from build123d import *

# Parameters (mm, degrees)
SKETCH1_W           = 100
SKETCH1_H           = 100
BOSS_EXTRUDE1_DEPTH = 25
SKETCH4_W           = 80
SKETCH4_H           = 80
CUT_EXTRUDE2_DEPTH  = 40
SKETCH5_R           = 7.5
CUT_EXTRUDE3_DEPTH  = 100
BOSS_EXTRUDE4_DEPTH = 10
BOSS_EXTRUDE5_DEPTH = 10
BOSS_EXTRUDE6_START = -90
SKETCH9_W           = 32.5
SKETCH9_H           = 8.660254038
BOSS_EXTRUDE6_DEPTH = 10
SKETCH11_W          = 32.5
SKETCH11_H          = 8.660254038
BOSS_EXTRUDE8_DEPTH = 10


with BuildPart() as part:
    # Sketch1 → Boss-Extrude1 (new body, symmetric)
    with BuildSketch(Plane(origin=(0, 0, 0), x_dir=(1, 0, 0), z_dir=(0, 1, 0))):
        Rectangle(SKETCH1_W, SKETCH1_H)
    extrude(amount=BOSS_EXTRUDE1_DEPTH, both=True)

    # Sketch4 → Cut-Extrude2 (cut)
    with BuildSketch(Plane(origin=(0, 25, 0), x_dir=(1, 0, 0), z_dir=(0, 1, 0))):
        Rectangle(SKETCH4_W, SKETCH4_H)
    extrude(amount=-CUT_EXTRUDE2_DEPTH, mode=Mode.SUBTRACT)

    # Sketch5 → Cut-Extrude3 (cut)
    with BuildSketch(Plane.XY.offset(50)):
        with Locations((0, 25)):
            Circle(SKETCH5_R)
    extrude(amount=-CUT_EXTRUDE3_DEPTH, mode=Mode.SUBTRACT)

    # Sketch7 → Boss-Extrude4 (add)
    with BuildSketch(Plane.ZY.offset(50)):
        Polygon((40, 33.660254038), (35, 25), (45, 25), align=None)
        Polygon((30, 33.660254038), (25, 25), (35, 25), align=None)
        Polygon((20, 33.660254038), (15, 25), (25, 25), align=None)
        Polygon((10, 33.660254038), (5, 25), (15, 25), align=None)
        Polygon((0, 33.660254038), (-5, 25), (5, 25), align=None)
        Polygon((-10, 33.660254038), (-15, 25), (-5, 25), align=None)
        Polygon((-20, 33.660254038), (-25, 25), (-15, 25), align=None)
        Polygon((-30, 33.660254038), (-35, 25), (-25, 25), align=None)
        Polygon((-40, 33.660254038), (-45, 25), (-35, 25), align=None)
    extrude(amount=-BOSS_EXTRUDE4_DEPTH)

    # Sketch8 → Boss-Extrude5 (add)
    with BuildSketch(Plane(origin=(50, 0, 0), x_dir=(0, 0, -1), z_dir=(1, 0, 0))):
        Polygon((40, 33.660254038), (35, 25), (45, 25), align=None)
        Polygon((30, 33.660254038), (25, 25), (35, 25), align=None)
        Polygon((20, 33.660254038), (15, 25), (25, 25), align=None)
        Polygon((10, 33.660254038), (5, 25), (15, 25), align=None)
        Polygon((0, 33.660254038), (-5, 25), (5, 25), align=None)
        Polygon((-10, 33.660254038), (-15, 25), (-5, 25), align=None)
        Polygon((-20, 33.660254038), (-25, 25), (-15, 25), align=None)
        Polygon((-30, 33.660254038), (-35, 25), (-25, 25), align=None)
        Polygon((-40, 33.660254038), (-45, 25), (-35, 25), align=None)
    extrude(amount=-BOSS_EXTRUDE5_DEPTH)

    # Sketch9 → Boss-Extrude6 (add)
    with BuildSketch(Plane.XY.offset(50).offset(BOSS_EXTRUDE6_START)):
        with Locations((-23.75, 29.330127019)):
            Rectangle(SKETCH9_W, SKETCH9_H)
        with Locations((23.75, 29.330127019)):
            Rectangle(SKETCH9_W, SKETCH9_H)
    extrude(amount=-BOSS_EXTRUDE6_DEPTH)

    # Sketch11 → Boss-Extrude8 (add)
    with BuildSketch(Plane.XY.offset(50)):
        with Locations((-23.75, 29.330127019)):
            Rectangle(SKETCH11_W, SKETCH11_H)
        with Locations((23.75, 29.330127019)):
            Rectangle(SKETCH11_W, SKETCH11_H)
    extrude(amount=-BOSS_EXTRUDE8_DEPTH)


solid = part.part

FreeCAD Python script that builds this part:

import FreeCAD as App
import Part
import Sketcher
from FreeCAD import Vector
Q = App.Units.Quantity

doc = App.newDocument("Part")
params = doc.addObject("Spreadsheet::Sheet", "Params")
for row, (alias, value) in enumerate([
    ("sketch1_width", "100 mm"),
    ("pad1_length", "50 mm"),
    ("sketch2_width", "80 mm"),
    ("pocket1_length", "40 mm"),
    ("sketch3_diameter", "15 mm"),
    ("pocket2_length", "100 mm"),
    ("sketch4_height", "10 mm"),
    ("pad2_length", "10 mm"),
    ("sketch5_height", "10 mm"),
    ("pad3_length", "10 mm"),
    ("sketch6_width", "32.5 mm"),
    ("pad4_length", "10 mm"),
    ("sketch7_width", "32.5 mm"),
    ("pad5_length", "10 mm"),
], start=1):
    params.set(f"A{row}", alias)
    params.set(f"B{row}", "=" + value)
    params.setAlias(f"B{row}", alias)

body = doc.addObject("PartDesign::Body", "Body")

# Sketch on XZ plane
sketch1 = body.newObject("Sketcher::SketchObject", "Sketch")
sketch1.AttachmentSupport = (doc.getObject("XZ_Plane"), [""])
sketch1.MapMode = "FlatFace"
sketch1.addGeometry([
    Part.LineSegment(Vector(-50, -50, 0), Vector(-50, 50, 0)),
    Part.LineSegment(Vector(-50, 50, 0), Vector(50, 50, 0)),
    Part.LineSegment(Vector(50, 50, 0), Vector(50, -50, 0)),
    Part.LineSegment(Vector(50, -50, 0), Vector(-50, -50, 0)),
], False)
sketch1.addConstraint([
    Sketcher.Constraint("Coincident", 0, 2, 1, 1),
    Sketcher.Constraint("Coincident", 1, 2, 2, 1),
    Sketcher.Constraint("Coincident", 2, 2, 3, 1),
    Sketcher.Constraint("Coincident", 3, 2, 0, 1),
    Sketcher.Constraint("Vertical", 0),
    Sketcher.Constraint("Horizontal", 1),
    Sketcher.Constraint("Vertical", 2),
    Sketcher.Constraint("Horizontal", 3),
    Sketcher.Constraint("Symmetric", 0, 2, 2, 2, -1, 1),
    Sketcher.Constraint("Equal", 3, 0),
    Sketcher.Constraint("DistanceX", 1, 1, 1, 2, Q("100 mm")),
])
sketch1.setExpression("Constraints[10]", "Params.sketch1_width")
pad1 = body.newObject("PartDesign::Pad", "Pad")
pad1.Profile = sketch1
pad1.setExpression("Length", "Params.pad1_length")
pad1.Midplane = True

# Sketch on XZ plane
sketch2 = body.newObject("Sketcher::SketchObject", "Sketch001")
sketch2.AttachmentSupport = (doc.getObject("XZ_Plane"), [""])
sketch2.MapMode = "FlatFace"
sketch2.AttachmentOffset = App.Placement(Vector(0, 0, -25), App.Rotation())
sketch2.addGeometry([
    Part.LineSegment(Vector(-40, -40, 0), Vector(-40, 40, 0)),
    Part.LineSegment(Vector(-40, 40, 0), Vector(40, 40, 0)),
    Part.LineSegment(Vector(40, 40, 0), Vector(40, -40, 0)),
    Part.LineSegment(Vector(40, -40, 0), Vector(-40, -40, 0)),
], False)
sketch2.addConstraint([
    Sketcher.Constraint("Coincident", 0, 2, 1, 1),
    Sketcher.Constraint("Coincident", 1, 2, 2, 1),
    Sketcher.Constraint("Coincident", 2, 2, 3, 1),
    Sketcher.Constraint("Coincident", 3, 2, 0, 1),
    Sketcher.Constraint("Vertical", 0),
    Sketcher.Constraint("Horizontal", 1),
    Sketcher.Constraint("Vertical", 2),
    Sketcher.Constraint("Horizontal", 3),
    Sketcher.Constraint("Symmetric", 0, 2, 2, 2, -1, 1),
    Sketcher.Constraint("Equal", 3, 0),
    Sketcher.Constraint("DistanceX", 1, 1, 1, 2, Q("80 mm")),
])
sketch2.setExpression("Constraints[10]", "Params.sketch2_width")
pocket1 = body.newObject("PartDesign::Pocket", "Pocket")
pocket1.Profile = sketch2
pocket1.setExpression("Length", "Params.pocket1_length")
pocket1.Reversed = True

# Sketch on XY plane
sketch3 = body.newObject("Sketcher::SketchObject", "Sketch002")
sketch3.AttachmentSupport = (doc.getObject("XY_Plane"), [""])
sketch3.MapMode = "FlatFace"
sketch3.AttachmentOffset = App.Placement(Vector(0, 0, 50), App.Rotation())
sketch3.addGeometry(Part.Circle(Vector(0, 25, 0), Vector(0, 0, 1), 8), False)
sketch3.addConstraint([
    Sketcher.Constraint("PointOnObject", 0, 3, -2),
    Sketcher.Constraint("Diameter", 0, Q("15 mm")),
    Sketcher.Constraint("DistanceY", -1, 1, 0, 3, Q("25 mm")),
])
sketch3.setExpression("Constraints[1]", "Params.sketch3_diameter")
pocket2 = body.newObject("PartDesign::Pocket", "Pocket001")
pocket2.Profile = sketch3
pocket2.setExpression("Length", "Params.pocket2_length")

# Sketch on YZ plane
sketch4 = body.newObject("Sketcher::SketchObject", "Sketch003")
sketch4.AttachmentSupport = (doc.getObject("YZ_Plane"), [""])
sketch4.MapMode = "FlatFace"
sketch4.AttachmentOffset = App.Placement(Vector(0, 0, -50), App.Rotation())
sketch4.addGeometry([
    Part.LineSegment(Vector(34, 40, 0), Vector(25, 35, 0)),  # 0
    Part.LineSegment(Vector(25, 35, 0), Vector(25, 45, 0)),  # 1
    Part.LineSegment(Vector(25, 45, 0), Vector(34, 40, 0)),  # 2
    Part.LineSegment(Vector(34, 30, 0), Vector(25, 25, 0)),  # 3
    Part.LineSegment(Vector(25, 25, 0), Vector(25, 35, 0)),  # 4
    Part.LineSegment(Vector(25, 35, 0), Vector(34, 30, 0)),  # 5
    Part.LineSegment(Vector(34, 20, 0), Vector(25, 15, 0)),  # 6
    Part.LineSegment(Vector(25, 15, 0), Vector(25, 25, 0)),  # 7
    Part.LineSegment(Vector(25, 25, 0), Vector(34, 20, 0)),  # 8
    Part.LineSegment(Vector(34, 10, 0), Vector(25, 5, 0)),  # 9
    Part.LineSegment(Vector(25, 5, 0), Vector(25, 15, 0)),  # 10
    Part.LineSegment(Vector(25, 15, 0), Vector(34, 10, 0)),  # 11
    Part.LineSegment(Vector(34, 0, 0), Vector(25, -5, 0)),  # 12
    Part.LineSegment(Vector(25, -5, 0), Vector(25, 5, 0)),  # 13
    Part.LineSegment(Vector(25, 5, 0), Vector(34, 0, 0)),  # 14
    Part.LineSegment(Vector(34, -10, 0), Vector(25, -15, 0)),  # 15
    Part.LineSegment(Vector(25, -15, 0), Vector(25, -5, 0)),  # 16
    Part.LineSegment(Vector(25, -5, 0), Vector(34, -10, 0)),  # 17
    Part.LineSegment(Vector(34, -20, 0), Vector(25, -25, 0)),  # 18
    Part.LineSegment(Vector(25, -25, 0), Vector(25, -15, 0)),  # 19
    Part.LineSegment(Vector(25, -15, 0), Vector(34, -20, 0)),  # 20
    Part.LineSegment(Vector(34, -30, 0), Vector(25, -35, 0)),  # 21
    Part.LineSegment(Vector(25, -35, 0), Vector(25, -25, 0)),  # 22
    Part.LineSegment(Vector(25, -25, 0), Vector(34, -30, 0)),  # 23
    Part.LineSegment(Vector(34, -40, 0), Vector(25, -45, 0)),  # 24
    Part.LineSegment(Vector(25, -45, 0), Vector(25, -35, 0)),  # 25
    Part.LineSegment(Vector(25, -35, 0), Vector(34, -40, 0)),  # 26
], False)
sketch4.addConstraint([
    Sketcher.Constraint("Coincident", 0, 2, 1, 1),
    Sketcher.Constraint("Coincident", 1, 2, 2, 1),
    Sketcher.Constraint("Coincident", 2, 2, 0, 1),
    Sketcher.Constraint("Coincident", 3, 2, 4, 1),
    Sketcher.Constraint("Coincident", 4, 2, 5, 1),
    Sketcher.Constraint("Coincident", 5, 2, 3, 1),
    Sketcher.Constraint("Coincident", 6, 2, 7, 1),
    Sketcher.Constraint("Coincident", 7, 2, 8, 1),
    Sketcher.Constraint("Coincident", 8, 2, 6, 1),
    Sketcher.Constraint("Coincident", 9, 2, 10, 1),
    Sketcher.Constraint("Coincident", 10, 2, 11, 1),
    Sketcher.Constraint("Coincident", 11, 2, 9, 1),
    Sketcher.Constraint("Coincident", 12, 2, 13, 1),
    Sketcher.Constraint("Coincident", 13, 2, 14, 1),
    Sketcher.Constraint("Coincident", 14, 2, 12, 1),
    Sketcher.Constraint("Coincident", 15, 2, 16, 1),
    Sketcher.Constraint("Coincident", 16, 2, 17, 1),
    Sketcher.Constraint("Coincident", 17, 2, 15, 1),
    Sketcher.Constraint("Coincident", 18, 2, 19, 1),
    Sketcher.Constraint("Coincident", 19, 2, 20, 1),
    Sketcher.Constraint("Coincident", 20, 2, 18, 1),
    Sketcher.Constraint("Coincident", 21, 2, 22, 1),
    Sketcher.Constraint("Coincident", 22, 2, 23, 1),
    Sketcher.Constraint("Coincident", 23, 2, 21, 1),
    Sketcher.Constraint("Coincident", 24, 2, 25, 1),
    Sketcher.Constraint("Coincident", 25, 2, 26, 1),
    Sketcher.Constraint("Coincident", 26, 2, 24, 1),
    Sketcher.Constraint("Vertical", 1),
    Sketcher.Constraint("Vertical", 4),
    Sketcher.Constraint("Vertical", 7),
    Sketcher.Constraint("Vertical", 10),
    Sketcher.Constraint("Vertical", 13),
    Sketcher.Constraint("Vertical", 16),
    Sketcher.Constraint("Vertical", 19),
    Sketcher.Constraint("Vertical", 22),
    Sketcher.Constraint("Vertical", 25),
    Sketcher.Constraint("Coincident", 4, 2, 0, 2),
    Sketcher.Constraint("Coincident", 7, 2, 3, 2),
    Sketcher.Constraint("Coincident", 10, 2, 6, 2),
    Sketcher.Constraint("Coincident", 13, 2, 9, 2),
    Sketcher.Constraint("Coincident", 16, 2, 12, 2),
    Sketcher.Constraint("Coincident", 19, 2, 15, 2),
    Sketcher.Constraint("Coincident", 22, 2, 18, 2),
    Sketcher.Constraint("Coincident", 25, 2, 21, 2),
    Sketcher.Constraint("Symmetric", 11, 2, 17, 2, -1),
    Sketcher.Constraint("Symmetric", 8, 2, 20, 2, -1),
    Sketcher.Constraint("Symmetric", 5, 2, 23, 2, -1),
    Sketcher.Constraint("Symmetric", 2, 2, 26, 2, -1),
    Sketcher.Constraint("PointOnObject", 14, 2, -1),
    Sketcher.Constraint("Parallel", 0, 3),
    Sketcher.Constraint("Parallel", 2, 5),
    Sketcher.Constraint("Parallel", 3, 6),
    Sketcher.Constraint("Parallel", 5, 8),
    Sketcher.Constraint("Parallel", 6, 9),
    Sketcher.Constraint("Parallel", 8, 11),
    Sketcher.Constraint("Parallel", 9, 12),
    Sketcher.Constraint("Parallel", 11, 14),
    Sketcher.Constraint("Parallel", 12, 15),
    Sketcher.Constraint("Parallel", 15, 18),
    Sketcher.Constraint("Parallel", 18, 21),
    Sketcher.Constraint("Parallel", 21, 24),
    Sketcher.Constraint("Vertical", 2, 2, 5, 2),
    Sketcher.Constraint("Vertical", 5, 2, 8, 2),
    Sketcher.Constraint("Vertical", 8, 2, 11, 2),
    Sketcher.Constraint("Vertical", 11, 2, 14, 2),
    Sketcher.Constraint("Equal", 0, 2),
    Sketcher.Constraint("DistanceY", 1, 1, 1, 2, Q("10 mm")),
    Sketcher.Constraint("Angle", 0, Q("-150 deg")),
    Sketcher.Constraint("DistanceX", -1, 1, 0, 2, Q("25 mm")),
])
sketch4.setExpression("Constraints[66]", "Params.sketch4_height")
pad2 = body.newObject("PartDesign::Pad", "Pad001")
pad2.Profile = sketch4
pad2.setExpression("Length", "Params.pad2_length")

# Sketch on YZ plane
sketch5 = body.newObject("Sketcher::SketchObject", "Sketch004")
sketch5.AttachmentSupport = (doc.getObject("YZ_Plane"), [""])
sketch5.MapMode = "FlatFace"
sketch5.AttachmentOffset = App.Placement(Vector(0, 0, 50), App.Rotation())
sketch5.addGeometry([
    Part.LineSegment(Vector(34, -40, 0), Vector(25, -35, 0)),  # 0
    Part.LineSegment(Vector(25, -35, 0), Vector(25, -45, 0)),  # 1
    Part.LineSegment(Vector(25, -45, 0), Vector(34, -40, 0)),  # 2
    Part.LineSegment(Vector(34, -30, 0), Vector(25, -25, 0)),  # 3
    Part.LineSegment(Vector(25, -25, 0), Vector(25, -35, 0)),  # 4
    Part.LineSegment(Vector(25, -35, 0), Vector(34, -30, 0)),  # 5
    Part.LineSegment(Vector(34, -20, 0), Vector(25, -15, 0)),  # 6
    Part.LineSegment(Vector(25, -15, 0), Vector(25, -25, 0)),  # 7
    Part.LineSegment(Vector(25, -25, 0), Vector(34, -20, 0)),  # 8
    Part.LineSegment(Vector(34, -10, 0), Vector(25, -5, 0)),  # 9
    Part.LineSegment(Vector(25, -5, 0), Vector(25, -15, 0)),  # 10
    Part.LineSegment(Vector(25, -15, 0), Vector(34, -10, 0)),  # 11
    Part.LineSegment(Vector(34, 0, 0), Vector(25, 5, 0)),  # 12
    Part.LineSegment(Vector(25, 5, 0), Vector(25, -5, 0)),  # 13
    Part.LineSegment(Vector(25, -5, 0), Vector(34, 0, 0)),  # 14
    Part.LineSegment(Vector(34, 10, 0), Vector(25, 15, 0)),  # 15
    Part.LineSegment(Vector(25, 15, 0), Vector(25, 5, 0)),  # 16
    Part.LineSegment(Vector(25, 5, 0), Vector(34, 10, 0)),  # 17
    Part.LineSegment(Vector(34, 20, 0), Vector(25, 25, 0)),  # 18
    Part.LineSegment(Vector(25, 25, 0), Vector(25, 15, 0)),  # 19
    Part.LineSegment(Vector(25, 15, 0), Vector(34, 20, 0)),  # 20
    Part.LineSegment(Vector(34, 30, 0), Vector(25, 35, 0)),  # 21
    Part.LineSegment(Vector(25, 35, 0), Vector(25, 25, 0)),  # 22
    Part.LineSegment(Vector(25, 25, 0), Vector(34, 30, 0)),  # 23
    Part.LineSegment(Vector(34, 40, 0), Vector(25, 45, 0)),  # 24
    Part.LineSegment(Vector(25, 45, 0), Vector(25, 35, 0)),  # 25
    Part.LineSegment(Vector(25, 35, 0), Vector(34, 40, 0)),  # 26
], False)
sketch5.addConstraint([
    Sketcher.Constraint("Coincident", 0, 2, 1, 1),
    Sketcher.Constraint("Coincident", 1, 2, 2, 1),
    Sketcher.Constraint("Coincident", 2, 2, 0, 1),
    Sketcher.Constraint("Coincident", 3, 2, 4, 1),
    Sketcher.Constraint("Coincident", 4, 2, 5, 1),
    Sketcher.Constraint("Coincident", 5, 2, 3, 1),
    Sketcher.Constraint("Coincident", 6, 2, 7, 1),
    Sketcher.Constraint("Coincident", 7, 2, 8, 1),
    Sketcher.Constraint("Coincident", 8, 2, 6, 1),
    Sketcher.Constraint("Coincident", 9, 2, 10, 1),
    Sketcher.Constraint("Coincident", 10, 2, 11, 1),
    Sketcher.Constraint("Coincident", 11, 2, 9, 1),
    Sketcher.Constraint("Coincident", 12, 2, 13, 1),
    Sketcher.Constraint("Coincident", 13, 2, 14, 1),
    Sketcher.Constraint("Coincident", 14, 2, 12, 1),
    Sketcher.Constraint("Coincident", 15, 2, 16, 1),
    Sketcher.Constraint("Coincident", 16, 2, 17, 1),
    Sketcher.Constraint("Coincident", 17, 2, 15, 1),
    Sketcher.Constraint("Coincident", 18, 2, 19, 1),
    Sketcher.Constraint("Coincident", 19, 2, 20, 1),
    Sketcher.Constraint("Coincident", 20, 2, 18, 1),
    Sketcher.Constraint("Coincident", 21, 2, 22, 1),
    Sketcher.Constraint("Coincident", 22, 2, 23, 1),
    Sketcher.Constraint("Coincident", 23, 2, 21, 1),
    Sketcher.Constraint("Coincident", 24, 2, 25, 1),
    Sketcher.Constraint("Coincident", 25, 2, 26, 1),
    Sketcher.Constraint("Coincident", 26, 2, 24, 1),
    Sketcher.Constraint("Vertical", 1),
    Sketcher.Constraint("Vertical", 4),
    Sketcher.Constraint("Vertical", 7),
    Sketcher.Constraint("Vertical", 10),
    Sketcher.Constraint("Vertical", 13),
    Sketcher.Constraint("Vertical", 16),
    Sketcher.Constraint("Vertical", 19),
    Sketcher.Constraint("Vertical", 22),
    Sketcher.Constraint("Vertical", 25),
    Sketcher.Constraint("Coincident", 4, 2, 0, 2),
    Sketcher.Constraint("Coincident", 7, 2, 3, 2),
    Sketcher.Constraint("Coincident", 10, 2, 6, 2),
    Sketcher.Constraint("Coincident", 13, 2, 9, 2),
    Sketcher.Constraint("Coincident", 16, 2, 12, 2),
    Sketcher.Constraint("Coincident", 19, 2, 15, 2),
    Sketcher.Constraint("Coincident", 22, 2, 18, 2),
    Sketcher.Constraint("Coincident", 25, 2, 21, 2),
    Sketcher.Constraint("Symmetric", 11, 2, 17, 2, -1),
    Sketcher.Constraint("Symmetric", 8, 2, 20, 2, -1),
    Sketcher.Constraint("Symmetric", 5, 2, 23, 2, -1),
    Sketcher.Constraint("Symmetric", 2, 2, 26, 2, -1),
    Sketcher.Constraint("PointOnObject", 14, 2, -1),
    Sketcher.Constraint("Parallel", 0, 3),
    Sketcher.Constraint("Parallel", 2, 5),
    Sketcher.Constraint("Parallel", 3, 6),
    Sketcher.Constraint("Parallel", 5, 8),
    Sketcher.Constraint("Parallel", 6, 9),
    Sketcher.Constraint("Parallel", 8, 11),
    Sketcher.Constraint("Parallel", 9, 12),
    Sketcher.Constraint("Parallel", 11, 14),
    Sketcher.Constraint("Parallel", 12, 15),
    Sketcher.Constraint("Parallel", 15, 18),
    Sketcher.Constraint("Parallel", 18, 21),
    Sketcher.Constraint("Parallel", 21, 24),
    Sketcher.Constraint("Vertical", 2, 2, 5, 2),
    Sketcher.Constraint("Vertical", 5, 2, 8, 2),
    Sketcher.Constraint("Vertical", 8, 2, 11, 2),
    Sketcher.Constraint("Vertical", 11, 2, 14, 2),
    Sketcher.Constraint("Equal", 0, 2),
    Sketcher.Constraint("DistanceY", 1, 2, 1, 1, Q("10 mm")),
    Sketcher.Constraint("Angle", 0, Q("150 deg")),
    Sketcher.Constraint("DistanceX", -1, 1, 0, 2, Q("25 mm")),
])
sketch5.setExpression("Constraints[66]", "Params.sketch5_height")
pad3 = body.newObject("PartDesign::Pad", "Pad002")
pad3.Profile = sketch5
pad3.setExpression("Length", "Params.pad3_length")
pad3.Reversed = True

# Sketch on XY plane
sketch6 = body.newObject("Sketcher::SketchObject", "Sketch005")
sketch6.AttachmentSupport = (doc.getObject("XY_Plane"), [""])
sketch6.MapMode = "FlatFace"
sketch6.AttachmentOffset = App.Placement(Vector(0, 0, -40), App.Rotation())
sketch6.addGeometry([
    Part.LineSegment(Vector(-40, 34, 0), Vector(-40, 25, 0)),  # 0
    Part.LineSegment(Vector(-40, 25, 0), Vector(-8, 25, 0)),  # 1
    Part.LineSegment(Vector(-8, 25, 0), Vector(-8, 34, 0)),  # 2
    Part.LineSegment(Vector(-8, 34, 0), Vector(-40, 34, 0)),  # 3
    Part.LineSegment(Vector(8, 34, 0), Vector(8, 25, 0)),  # 4
    Part.LineSegment(Vector(8, 25, 0), Vector(40, 25, 0)),  # 5
    Part.LineSegment(Vector(40, 25, 0), Vector(40, 34, 0)),  # 6
    Part.LineSegment(Vector(40, 34, 0), Vector(8, 34, 0)),  # 7
], False)
sketch6.addConstraint([
    Sketcher.Constraint("Coincident", 0, 2, 1, 1),
    Sketcher.Constraint("Coincident", 1, 2, 2, 1),
    Sketcher.Constraint("Coincident", 2, 2, 3, 1),
    Sketcher.Constraint("Coincident", 3, 2, 0, 1),
    Sketcher.Constraint("Coincident", 4, 2, 5, 1),
    Sketcher.Constraint("Coincident", 5, 2, 6, 1),
    Sketcher.Constraint("Coincident", 6, 2, 7, 1),
    Sketcher.Constraint("Coincident", 7, 2, 4, 1),
    Sketcher.Constraint("Vertical", 0),
    Sketcher.Constraint("Horizontal", 1),
    Sketcher.Constraint("Vertical", 2),
    Sketcher.Constraint("Horizontal", 3),
    Sketcher.Constraint("Vertical", 4),
    Sketcher.Constraint("Horizontal", 5),
    Sketcher.Constraint("Vertical", 6),
    Sketcher.Constraint("Horizontal", 7),
    Sketcher.Constraint("Symmetric", 1, 2, 4, 2, -2),
    Sketcher.Constraint("Symmetric", 3, 2, 6, 2, -2),
    Sketcher.Constraint("DistanceX", 1, 1, 1, 2, Q("32.5 mm")),
    Sketcher.Constraint("DistanceX", 0, 2, -1, 1, Q("40 mm")),
    Sketcher.Constraint("DistanceY", -1, 1, 0, 2, Q("25 mm")),
    Sketcher.Constraint("DistanceY", 0, 2, 0, 1, Q("8.660254 mm")),
])
sketch6.setExpression("Constraints[18]", "Params.sketch6_width")
pad4 = body.newObject("PartDesign::Pad", "Pad003")
pad4.Profile = sketch6
pad4.setExpression("Length", "Params.pad4_length")
pad4.Reversed = True

# Sketch on XY plane
sketch7 = body.newObject("Sketcher::SketchObject", "Sketch006")
sketch7.AttachmentSupport = (doc.getObject("XY_Plane"), [""])
sketch7.MapMode = "FlatFace"
sketch7.AttachmentOffset = App.Placement(Vector(0, 0, 50), App.Rotation())
sketch7.addGeometry([
    Part.LineSegment(Vector(-40, 34, 0), Vector(-40, 25, 0)),  # 0
    Part.LineSegment(Vector(-40, 25, 0), Vector(-8, 25, 0)),  # 1
    Part.LineSegment(Vector(-8, 25, 0), Vector(-8, 34, 0)),  # 2
    Part.LineSegment(Vector(-8, 34, 0), Vector(-40, 34, 0)),  # 3
    Part.LineSegment(Vector(8, 34, 0), Vector(8, 25, 0)),  # 4
    Part.LineSegment(Vector(8, 25, 0), Vector(40, 25, 0)),  # 5
    Part.LineSegment(Vector(40, 25, 0), Vector(40, 34, 0)),  # 6
    Part.LineSegment(Vector(40, 34, 0), Vector(8, 34, 0)),  # 7
], False)
sketch7.addConstraint([
    Sketcher.Constraint("Coincident", 0, 2, 1, 1),
    Sketcher.Constraint("Coincident", 1, 2, 2, 1),
    Sketcher.Constraint("Coincident", 2, 2, 3, 1),
    Sketcher.Constraint("Coincident", 3, 2, 0, 1),
    Sketcher.Constraint("Coincident", 4, 2, 5, 1),
    Sketcher.Constraint("Coincident", 5, 2, 6, 1),
    Sketcher.Constraint("Coincident", 6, 2, 7, 1),
    Sketcher.Constraint("Coincident", 7, 2, 4, 1),
    Sketcher.Constraint("Vertical", 0),
    Sketcher.Constraint("Horizontal", 1),
    Sketcher.Constraint("Vertical", 2),
    Sketcher.Constraint("Horizontal", 3),
    Sketcher.Constraint("Vertical", 4),
    Sketcher.Constraint("Horizontal", 5),
    Sketcher.Constraint("Vertical", 6),
    Sketcher.Constraint("Horizontal", 7),
    Sketcher.Constraint("Symmetric", 1, 2, 4, 2, -2),
    Sketcher.Constraint("Symmetric", 3, 2, 6, 2, -2),
    Sketcher.Constraint("DistanceX", 1, 1, 1, 2, Q("32.5 mm")),
    Sketcher.Constraint("DistanceX", 0, 2, -1, 1, Q("40 mm")),
    Sketcher.Constraint("DistanceY", -1, 1, 0, 2, Q("25 mm")),
    Sketcher.Constraint("DistanceY", 0, 2, 0, 1, Q("8.660254 mm")),
])
sketch7.setExpression("Constraints[18]", "Params.sketch7_width")
pad5 = body.newObject("PartDesign::Pad", "Pad004")
pad5.Profile = sketch7
pad5.setExpression("Length", "Params.pad5_length")
pad5.Reversed = True

doc.recompute()
